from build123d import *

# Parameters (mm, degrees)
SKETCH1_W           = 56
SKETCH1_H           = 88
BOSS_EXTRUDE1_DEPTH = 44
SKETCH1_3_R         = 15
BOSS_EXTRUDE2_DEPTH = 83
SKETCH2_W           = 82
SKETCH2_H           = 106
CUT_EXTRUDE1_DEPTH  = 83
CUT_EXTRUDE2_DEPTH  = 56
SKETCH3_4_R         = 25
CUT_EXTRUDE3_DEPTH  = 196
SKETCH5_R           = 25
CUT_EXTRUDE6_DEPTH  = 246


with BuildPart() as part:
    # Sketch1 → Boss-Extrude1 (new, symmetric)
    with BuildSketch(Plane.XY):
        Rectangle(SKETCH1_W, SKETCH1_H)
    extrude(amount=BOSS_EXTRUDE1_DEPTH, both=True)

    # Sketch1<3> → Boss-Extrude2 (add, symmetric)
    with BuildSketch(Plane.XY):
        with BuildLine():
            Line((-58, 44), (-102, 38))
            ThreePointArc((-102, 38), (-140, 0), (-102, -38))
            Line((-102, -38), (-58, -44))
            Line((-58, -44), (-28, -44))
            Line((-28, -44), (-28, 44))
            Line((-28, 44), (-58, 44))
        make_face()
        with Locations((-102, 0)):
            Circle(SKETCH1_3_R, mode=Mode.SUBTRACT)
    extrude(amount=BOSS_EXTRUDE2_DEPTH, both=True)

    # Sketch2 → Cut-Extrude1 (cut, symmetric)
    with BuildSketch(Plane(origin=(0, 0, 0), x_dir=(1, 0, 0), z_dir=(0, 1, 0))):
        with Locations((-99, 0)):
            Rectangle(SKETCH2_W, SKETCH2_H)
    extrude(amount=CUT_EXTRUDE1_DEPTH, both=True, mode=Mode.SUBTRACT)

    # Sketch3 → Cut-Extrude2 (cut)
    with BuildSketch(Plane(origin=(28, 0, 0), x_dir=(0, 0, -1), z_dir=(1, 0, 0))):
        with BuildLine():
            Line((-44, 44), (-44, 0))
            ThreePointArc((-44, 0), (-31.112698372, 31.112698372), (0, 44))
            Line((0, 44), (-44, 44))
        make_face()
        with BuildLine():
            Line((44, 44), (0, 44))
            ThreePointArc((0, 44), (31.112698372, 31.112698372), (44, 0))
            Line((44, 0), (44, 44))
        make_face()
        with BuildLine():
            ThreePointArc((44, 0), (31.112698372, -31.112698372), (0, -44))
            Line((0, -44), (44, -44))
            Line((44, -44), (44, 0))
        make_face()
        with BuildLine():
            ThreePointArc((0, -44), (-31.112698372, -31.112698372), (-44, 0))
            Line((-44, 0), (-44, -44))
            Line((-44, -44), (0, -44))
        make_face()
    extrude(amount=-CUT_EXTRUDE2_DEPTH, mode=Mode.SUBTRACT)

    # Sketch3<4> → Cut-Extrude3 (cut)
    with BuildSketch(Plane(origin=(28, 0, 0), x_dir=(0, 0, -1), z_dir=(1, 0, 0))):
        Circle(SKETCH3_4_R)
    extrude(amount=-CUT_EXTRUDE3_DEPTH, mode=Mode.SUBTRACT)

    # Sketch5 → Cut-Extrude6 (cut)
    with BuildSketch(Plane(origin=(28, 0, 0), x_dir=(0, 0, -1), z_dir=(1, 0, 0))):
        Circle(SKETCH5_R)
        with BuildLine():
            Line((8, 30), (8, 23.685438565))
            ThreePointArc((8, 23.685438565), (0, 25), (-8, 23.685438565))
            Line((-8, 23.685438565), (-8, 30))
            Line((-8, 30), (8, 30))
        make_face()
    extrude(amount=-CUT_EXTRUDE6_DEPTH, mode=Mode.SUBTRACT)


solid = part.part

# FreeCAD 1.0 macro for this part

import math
import FreeCAD as App
import Part
import Sketcher
from FreeCAD import Vector

doc = App.newDocument("Part")
params = doc.addObject("Spreadsheet::Sheet", "Params")
for row, (alias, value) in enumerate([
    ("sketch1_width", "56 mm"),
    ("sketch1_height", "88 mm"),
    ("pad1_length", "88 mm"),
    ("sketch2_diameter", "30 mm"),
    ("sketch2_radius", "38 mm"),
    ("sketch2_width", "30 mm"),
    ("sketch2_height", "88 mm"),
    ("pad2_length", "166 mm"),
    ("sketch3_width", "82 mm"),
    ("sketch3_height", "106 mm"),
    ("pocket1_length", "166 mm"),
    ("sketch4_radius", "44 mm"),
    ("pocket2_length", "56 mm"),
    ("sketch5_diameter", "50 mm"),
    ("pocket3_length", "196 mm"),
    ("sketch6_radius", "25 mm"),
    ("sketch6_height", "16 mm"),
    ("pocket4_length", "246 mm"),
], start=1):
    params.set(f"A{row}", alias)
    params.set(f"B{row}", "=" + value)
    params.setAlias(f"B{row}", alias)

body = doc.addObject("PartDesign::Body", "Body")

# Sketch on XY plane
sketch1 = body.newObject("Sketcher::SketchObject", "Sketch")
sketch1.AttachmentSupport = (doc.getObject("XY_Plane"), [""])
sketch1.MapMode = "FlatFace"
sketch1.addGeometry(Part.LineSegment(Vector(-28, 44, 0), Vector(-28, -44, 0)), False)
sketch1.addGeometry(Part.LineSegment(Vector(-28, -44, 0), Vector(28, -44, 0)), False)
sketch1.addGeometry(Part.LineSegment(Vector(28, -44, 0), Vector(28, 44, 0)), False)
sketch1.addGeometry(Part.LineSegment(Vector(28, 44, 0), Vector(-28, 44, 0)), False)
sketch1.addConstraint(Sketcher.Constraint("Coincident", 0, 2, 1, 1))
sketch1.addConstraint(Sketcher.Constraint("Coincident", 1, 2, 2, 1))
sketch1.addConstraint(Sketcher.Constraint("Coincident", 2, 2, 3, 1))
sketch1.addConstraint(Sketcher.Constraint("Coincident", 3, 2, 0, 1))
sketch1.addConstraint(Sketcher.Constraint("Vertical", 0))
sketch1.addConstraint(Sketcher.Constraint("Horizontal", 1))
sketch1.addConstraint(Sketcher.Constraint("Vertical", 2))
sketch1.addConstraint(Sketcher.Constraint("Horizontal", 3))
sketch1.addConstraint(Sketcher.Constraint("Symmetric", 0, 2, 2, 2, -1, 1))
sketch1.addConstraint(Sketcher.Constraint("DistanceX", 1, 1, 1, 2, 56.0))
sketch1.addConstraint(Sketcher.Constraint("DistanceY", 0, 2, 0, 1, 88.0))
sketch1.setExpression("Constraints[9]", "Params.sketch1_width")
sketch1.setExpression("Constraints[10]", "Params.sketch1_height")
pad1 = body.newObject("PartDesign::Pad", "Pad")
pad1.Profile = sketch1
pad1.setExpression("Length", "Params.pad1_length")
pad1.Midplane = True

# Sketch on XY plane
sketch2 = body.newObject("Sketcher::SketchObject", "Sketch001")
sketch2.AttachmentSupport = (doc.getObject("XY_Plane"), [""])
sketch2.MapMode = "FlatFace"
sketch2.addGeometry(Part.LineSegment(Vector(-58, 44, 0), Vector(-102, 38, 0)), False)
sketch2.addGeometry(Part.ArcOfCircle(Part.Circle(Vector(-102, 0, 0), Vector(0, 0, 1), 38), math.radians(90), math.radians(270)), False)
sketch2.addGeometry(Part.LineSegment(Vector(-102, -38, 0), Vector(-58, -44, 0)), False)
sketch2.addGeometry(Part.LineSegment(Vector(-58, -44, 0), Vector(-28, -44, 0)), False)
sketch2.addGeometry(Part.LineSegment(Vector(-28, -44, 0), Vector(-28, 44, 0)), False)
sketch2.addGeometry(Part.LineSegment(Vector(-28, 44, 0), Vector(-58, 44, 0)), False)
sketch2.addGeometry(Part.Circle(Vector(-102, 0, 0), Vector(0, 0, 1), 15), False)
sketch2.addConstraint(Sketcher.Constraint("Coincident", 0, 2, 1, 1))
sketch2.addConstraint(Sketcher.Constraint("Coincident", 1, 2, 2, 1))
sketch2.addConstraint(Sketcher.Constraint("Coincident", 2, 2, 3, 1))
sketch2.addConstraint(Sketcher.Constraint("Coincident", 3, 2, 4, 1))
sketch2.addConstraint(Sketcher.Constraint("Coincident", 4, 2, 5, 1))
sketch2.addConstraint(Sketcher.Constraint("Coincident", 5, 2, 0, 1))
sketch2.addConstraint(Sketcher.Constraint("Horizontal", 3))
sketch2.addConstraint(Sketcher.Constraint("Vertical", 4))
sketch2.addConstraint(Sketcher.Constraint("Horizontal", 5))
sketch2.addConstraint(Sketcher.Constraint("Coincident", 6, 3, 1, 3))
sketch2.addConstraint(Sketcher.Constraint("Symmetric", 0, 2, 1, 2, -1))
sketch2.addConstraint(Sketcher.Constraint("Symmetric", 2, 2, 5, 2, -1))
sketch2.addConstraint(Sketcher.Constraint("Vertical", 6, 3, 0, 2))
sketch2.addConstraint(Sketcher.Constraint("Diameter", 6, 30.0))
sketch2.addConstraint(Sketcher.Constraint("Radius", 1, 38.0))
sketch2.addConstraint(Sketcher.Constraint("DistanceX", 3, 1, 3, 2, 30.0))
sketch2.addConstraint(Sketcher.Constraint("DistanceY", 4, 1, 4, 2, 88.0))
sketch2.addConstraint(Sketcher.Constraint("DistanceX", 1, 3, -1, 1, 102.0))
sketch2.addConstraint(Sketcher.Constraint("DistanceX", 2, 2, -1, 1, 58.0))
sketch2.setExpression("Constraints[13]", "Params.sketch2_diameter")
sketch2.setExpression("Constraints[14]", "Params.sketch2_radius")
sketch2.setExpression("Constraints[15]", "Params.sketch2_width")
sketch2.setExpression("Constraints[16]", "Params.sketch2_height")
pad2 = body.newObject("PartDesign::Pad", "Pad001")
pad2.Profile = sketch2
pad2.setExpression("Length", "Params.pad2_length")
pad2.Midplane = True

# Sketch on XZ plane
sketch3 = body.newObject("Sketcher::SketchObject", "Sketch002")
sketch3.AttachmentSupport = (doc.getObject("XZ_Plane"), [""])
sketch3.MapMode = "FlatFace"
sketch3.addGeometry(Part.LineSegment(Vector(-140, -53, 0), Vector(-140, 53, 0)), False)
sketch3.addGeometry(Part.LineSegment(Vector(-140, 53, 0), Vector(-58, 53, 0)), False)
sketch3.addGeometry(Part.LineSegment(Vector(-58, 53, 0), Vector(-58, -53, 0)), False)
sketch3.addGeometry(Part.LineSegment(Vector(-58, -53, 0), Vector(-140, -53, 0)), False)
sketch3.addConstraint(Sketcher.Constraint("Coincident", 0, 2, 1, 1))
sketch3.addConstraint(Sketcher.Constraint("Coincident", 1, 2, 2, 1))
sketch3.addConstraint(Sketcher.Constraint("Coincident", 2, 2, 3, 1))
sketch3.addConstraint(Sketcher.Constraint("Coincident", 3, 2, 0, 1))
sketch3.addConstraint(Sketcher.Constraint("Vertical", 0))
sketch3.addConstraint(Sketcher.Constraint("Horizontal", 1))
sketch3.addConstraint(Sketcher.Constraint("Vertical", 2))
sketch3.addConstraint(Sketcher.Constraint("Horizontal", 3))
sketch3.addConstraint(Sketcher.Constraint("DistanceX", 1, 1, 1, 2, 82.0))
sketch3.addConstraint(Sketcher.Constraint("DistanceY", 0, 1, 0, 2, 106.0))
sketch3.addConstraint(Sketcher.Constraint("DistanceX", 0, 2, -1, 1, 140.0))
sketch3.addConstraint(Sketcher.Constraint("DistanceY", -1, 1, 0, 2, 53.0))
sketch3.setExpression("Constraints[8]", "Params.sketch3_width")
sketch3.setExpression("Constraints[9]", "Params.sketch3_height")
pocket1 = body.newObject("PartDesign::Pocket", "Pocket")
pocket1.Profile = sketch3
pocket1.setExpression("Length", "Params.pocket1_length")
pocket1.Midplane = True

# Sketch on YZ plane
sketch4 = body.newObject("Sketcher::SketchObject", "Sketch003")
sketch4.AttachmentSupport = (doc.getObject("YZ_Plane"), [""])
sketch4.MapMode = "FlatFace"
sketch4.AttachmentOffset = App.Placement(Vector(0, 0, 28), App.Rotation())
sketch4.addGeometry(Part.LineSegment(Vector(44, 44, 0), Vector(0, 44, 0)), False)
sketch4.addGeometry(Part.ArcOfCircle(Part.Circle(Vector(0, 0, 0), Vector(0, 0, 1), 44), math.radians(0), math.radians(90)), False)
sketch4.addGeometry(Part.LineSegment(Vector(44, 0, 0), Vector(44, 44, 0)), False)
sketch4.addGeometry(Part.LineSegment(Vector(44, -44, 0), Vector(44, 0, 0)), False)
sketch4.addGeometry(Part.ArcOfCircle(Part.Circle(Vector(0, 0, 0), Vector(0, 0, 1), 44), math.radians(-90), math.radians(0)), False)
sketch4.addGeometry(Part.LineSegment(Vector(0, -44, 0), Vector(44, -44, 0)), False)
sketch4.addGeometry(Part.ArcOfCircle(Part.Circle(Vector(0, 0, 0), Vector(0, 0, 1), 44), math.radians(-180), math.radians(-90)), False)
sketch4.addGeometry(Part.LineSegment(Vector(-44, 0, 0), Vector(-44, -44, 0)), False)
sketch4.addGeometry(Part.LineSegment(Vector(-44, -44, 0), Vector(0, -44, 0)), False)
sketch4.addGeometry(Part.ArcOfCircle(Part.Circle(Vector(0, 0, 0), Vector(0, 0, 1), 44), math.radians(90), math.radians(180)), False)
sketch4.addGeometry(Part.LineSegment(Vector(0, 44, 0), Vector(-44, 44, 0)), False)
sketch4.addGeometry(Part.LineSegment(Vector(-44, 44, 0), Vector(-44, 0, 0)), False)
sketch4.addConstraint(Sketcher.Constraint("Tangent", 0, 2, 1, 2))
sketch4.addConstraint(Sketcher.Constraint("Tangent", 1, 1, 2, 1))
sketch4.addConstraint(Sketcher.Constraint("Coincident", 2, 2, 0, 1))
sketch4.addConstraint(Sketcher.Constraint("Tangent", 3, 2, 4, 2))
sketch4.addConstraint(Sketcher.Constraint("Tangent", 4, 1, 5, 1))
sketch4.addConstraint(Sketcher.Constraint("Coincident", 5, 2, 3, 1))
sketch4.addConstraint(Sketcher.Constraint("Tangent", 6, 1, 7, 1))
sketch4.addConstraint(Sketcher.Constraint("Coincident", 7, 2, 8, 1))
sketch4.addConstraint(Sketcher.Constraint("Tangent", 8, 2, 6, 2))
sketch4.addConstraint(Sketcher.Constraint("Tangent", 9, 1, 10, 1))
sketch4.addConstraint(Sketcher.Constraint("Coincident", 10, 2, 11, 1))
sketch4.addConstraint(Sketcher.Constraint("Tangent", 11, 2, 9, 2))
sketch4.addConstraint(Sketcher.Constraint("Horizontal", 0))
sketch4.addConstraint(Sketcher.Constraint("Vertical", 2))
sketch4.addConstraint(Sketcher.Constraint("Vertical", 3))
sketch4.addConstraint(Sketcher.Constraint("Horizontal", 5))
sketch4.addConstraint(Sketcher.Constraint("Vertical", 7))
sketch4.addConstraint(Sketcher.Constraint("Horizontal", 8))
sketch4.addConstraint(Sketcher.Constraint("Horizontal", 10))
sketch4.addConstraint(Sketcher.Constraint("Vertical", 11))
sketch4.addConstraint(Sketcher.Constraint("Coincident", 1, 3, -1, 1))
sketch4.addConstraint(Sketcher.Constraint("Coincident", 4, 3, -1, 1))
sketch4.addConstraint(Sketcher.Constraint("Coincident", 6, 3, -1, 1))
sketch4.addConstraint(Sketcher.Constraint("Coincident", 9, 3, -1, 1))
sketch4.addConstraint(Sketcher.Constraint("Equal", 1, 4))
sketch4.addConstraint(Sketcher.Constraint("Equal", 4, 6))
sketch4.addConstraint(Sketcher.Constraint("Equal", 6, 9))
sketch4.addConstraint(Sketcher.Constraint("Radius", 1, 44.0))
sketch4.setExpression("Constraints[27]", "Params.sketch4_radius")
pocket2 = body.newObject("PartDesign::Pocket", "Pocket001")
pocket2.Profile = sketch4
pocket2.setExpression("Length", "Params.pocket2_length")

# Sketch on YZ plane
sketch5 = body.newObject("Sketcher::SketchObject", "Sketch004")
sketch5.AttachmentSupport = (doc.getObject("YZ_Plane"), [""])
sketch5.MapMode = "FlatFace"
sketch5.AttachmentOffset = App.Placement(Vector(0, 0, 28), App.Rotation())
sketch5.addGeometry(Part.Circle(Vector(0, 0, 0), Vector(0, 0, 1), 25), False)
sketch5.addConstraint(Sketcher.Constraint("Coincident", 0, 3, -1, 1))
sketch5.addConstraint(Sketcher.Constraint("Diameter", 0, 50.0))
sketch5.setExpression("Constraints[1]", "Params.sketch5_diameter")
pocket3 = body.newObject("PartDesign::Pocket", "Pocket002")
pocket3.Profile = sketch5
pocket3.setExpression("Length", "Params.pocket3_length")

# Sketch on YZ plane
sketch6 = body.newObject("Sketcher::SketchObject", "Sketch005")
sketch6.AttachmentSupport = (doc.getObject("YZ_Plane"), [""])
sketch6.MapMode = "FlatFace"
sketch6.AttachmentOffset = App.Placement(Vector(0, 0, 28), App.Rotation())
sketch6.addGeometry(Part.LineSegment(Vector(24, -8, 0), Vector(30, -8, 0)), False)
sketch6.addGeometry(Part.LineSegment(Vector(30, -8, 0), Vector(30, 8, 0)), False)
sketch6.addGeometry(Part.LineSegment(Vector(30, 8, 0), Vector(24, 8, 0)), False)
sketch6.addGeometry(Part.ArcOfCircle(Part.Circle(Vector(0, 0, 0), Vector(0, 0, 1), 25), math.radians(19), math.radians(341)), False)
sketch6.addConstraint(Sketcher.Constraint("Coincident", 0, 2, 1, 1))
sketch6.addConstraint(Sketcher.Constraint("Coincident", 1, 2, 2, 1))
sketch6.addConstraint(Sketcher.Constraint("Coincident", 2, 2, 3, 1))
sketch6.addConstraint(Sketcher.Constraint("Coincident", 3, 2, 0, 1))
sketch6.addConstraint(Sketcher.Constraint("Horizontal", 0))
sketch6.addConstraint(Sketcher.Constraint("Vertical", 1))
sketch6.addConstraint(Sketcher.Constraint("Horizontal", 2))
sketch6.addConstraint(Sketcher.Constraint("Coincident", 3, 3, -1, 1))
sketch6.addConstraint(Sketcher.Constraint("Vertical", 2, 2, 3, 2))
sketch6.addConstraint(Sketcher.Constraint("Radius", 3, 25.0))
sketch6.addConstraint(Sketcher.Constraint("DistanceY", 1, 1, 1, 2, 16.0))
sketch6.addConstraint(Sketcher.Constraint("DistanceX", -1, 1, 0, 2, 30.0))
sketch6.setExpression("Constraints[9]", "Params.sketch6_radius")
sketch6.setExpression("Constraints[10]", "Params.sketch6_height")
pocket4 = body.newObject("PartDesign::Pocket", "Pocket003")
pocket4.Profile = sketch6
pocket4.setExpression("Length", "Params.pocket4_length")

doc.recompute()
